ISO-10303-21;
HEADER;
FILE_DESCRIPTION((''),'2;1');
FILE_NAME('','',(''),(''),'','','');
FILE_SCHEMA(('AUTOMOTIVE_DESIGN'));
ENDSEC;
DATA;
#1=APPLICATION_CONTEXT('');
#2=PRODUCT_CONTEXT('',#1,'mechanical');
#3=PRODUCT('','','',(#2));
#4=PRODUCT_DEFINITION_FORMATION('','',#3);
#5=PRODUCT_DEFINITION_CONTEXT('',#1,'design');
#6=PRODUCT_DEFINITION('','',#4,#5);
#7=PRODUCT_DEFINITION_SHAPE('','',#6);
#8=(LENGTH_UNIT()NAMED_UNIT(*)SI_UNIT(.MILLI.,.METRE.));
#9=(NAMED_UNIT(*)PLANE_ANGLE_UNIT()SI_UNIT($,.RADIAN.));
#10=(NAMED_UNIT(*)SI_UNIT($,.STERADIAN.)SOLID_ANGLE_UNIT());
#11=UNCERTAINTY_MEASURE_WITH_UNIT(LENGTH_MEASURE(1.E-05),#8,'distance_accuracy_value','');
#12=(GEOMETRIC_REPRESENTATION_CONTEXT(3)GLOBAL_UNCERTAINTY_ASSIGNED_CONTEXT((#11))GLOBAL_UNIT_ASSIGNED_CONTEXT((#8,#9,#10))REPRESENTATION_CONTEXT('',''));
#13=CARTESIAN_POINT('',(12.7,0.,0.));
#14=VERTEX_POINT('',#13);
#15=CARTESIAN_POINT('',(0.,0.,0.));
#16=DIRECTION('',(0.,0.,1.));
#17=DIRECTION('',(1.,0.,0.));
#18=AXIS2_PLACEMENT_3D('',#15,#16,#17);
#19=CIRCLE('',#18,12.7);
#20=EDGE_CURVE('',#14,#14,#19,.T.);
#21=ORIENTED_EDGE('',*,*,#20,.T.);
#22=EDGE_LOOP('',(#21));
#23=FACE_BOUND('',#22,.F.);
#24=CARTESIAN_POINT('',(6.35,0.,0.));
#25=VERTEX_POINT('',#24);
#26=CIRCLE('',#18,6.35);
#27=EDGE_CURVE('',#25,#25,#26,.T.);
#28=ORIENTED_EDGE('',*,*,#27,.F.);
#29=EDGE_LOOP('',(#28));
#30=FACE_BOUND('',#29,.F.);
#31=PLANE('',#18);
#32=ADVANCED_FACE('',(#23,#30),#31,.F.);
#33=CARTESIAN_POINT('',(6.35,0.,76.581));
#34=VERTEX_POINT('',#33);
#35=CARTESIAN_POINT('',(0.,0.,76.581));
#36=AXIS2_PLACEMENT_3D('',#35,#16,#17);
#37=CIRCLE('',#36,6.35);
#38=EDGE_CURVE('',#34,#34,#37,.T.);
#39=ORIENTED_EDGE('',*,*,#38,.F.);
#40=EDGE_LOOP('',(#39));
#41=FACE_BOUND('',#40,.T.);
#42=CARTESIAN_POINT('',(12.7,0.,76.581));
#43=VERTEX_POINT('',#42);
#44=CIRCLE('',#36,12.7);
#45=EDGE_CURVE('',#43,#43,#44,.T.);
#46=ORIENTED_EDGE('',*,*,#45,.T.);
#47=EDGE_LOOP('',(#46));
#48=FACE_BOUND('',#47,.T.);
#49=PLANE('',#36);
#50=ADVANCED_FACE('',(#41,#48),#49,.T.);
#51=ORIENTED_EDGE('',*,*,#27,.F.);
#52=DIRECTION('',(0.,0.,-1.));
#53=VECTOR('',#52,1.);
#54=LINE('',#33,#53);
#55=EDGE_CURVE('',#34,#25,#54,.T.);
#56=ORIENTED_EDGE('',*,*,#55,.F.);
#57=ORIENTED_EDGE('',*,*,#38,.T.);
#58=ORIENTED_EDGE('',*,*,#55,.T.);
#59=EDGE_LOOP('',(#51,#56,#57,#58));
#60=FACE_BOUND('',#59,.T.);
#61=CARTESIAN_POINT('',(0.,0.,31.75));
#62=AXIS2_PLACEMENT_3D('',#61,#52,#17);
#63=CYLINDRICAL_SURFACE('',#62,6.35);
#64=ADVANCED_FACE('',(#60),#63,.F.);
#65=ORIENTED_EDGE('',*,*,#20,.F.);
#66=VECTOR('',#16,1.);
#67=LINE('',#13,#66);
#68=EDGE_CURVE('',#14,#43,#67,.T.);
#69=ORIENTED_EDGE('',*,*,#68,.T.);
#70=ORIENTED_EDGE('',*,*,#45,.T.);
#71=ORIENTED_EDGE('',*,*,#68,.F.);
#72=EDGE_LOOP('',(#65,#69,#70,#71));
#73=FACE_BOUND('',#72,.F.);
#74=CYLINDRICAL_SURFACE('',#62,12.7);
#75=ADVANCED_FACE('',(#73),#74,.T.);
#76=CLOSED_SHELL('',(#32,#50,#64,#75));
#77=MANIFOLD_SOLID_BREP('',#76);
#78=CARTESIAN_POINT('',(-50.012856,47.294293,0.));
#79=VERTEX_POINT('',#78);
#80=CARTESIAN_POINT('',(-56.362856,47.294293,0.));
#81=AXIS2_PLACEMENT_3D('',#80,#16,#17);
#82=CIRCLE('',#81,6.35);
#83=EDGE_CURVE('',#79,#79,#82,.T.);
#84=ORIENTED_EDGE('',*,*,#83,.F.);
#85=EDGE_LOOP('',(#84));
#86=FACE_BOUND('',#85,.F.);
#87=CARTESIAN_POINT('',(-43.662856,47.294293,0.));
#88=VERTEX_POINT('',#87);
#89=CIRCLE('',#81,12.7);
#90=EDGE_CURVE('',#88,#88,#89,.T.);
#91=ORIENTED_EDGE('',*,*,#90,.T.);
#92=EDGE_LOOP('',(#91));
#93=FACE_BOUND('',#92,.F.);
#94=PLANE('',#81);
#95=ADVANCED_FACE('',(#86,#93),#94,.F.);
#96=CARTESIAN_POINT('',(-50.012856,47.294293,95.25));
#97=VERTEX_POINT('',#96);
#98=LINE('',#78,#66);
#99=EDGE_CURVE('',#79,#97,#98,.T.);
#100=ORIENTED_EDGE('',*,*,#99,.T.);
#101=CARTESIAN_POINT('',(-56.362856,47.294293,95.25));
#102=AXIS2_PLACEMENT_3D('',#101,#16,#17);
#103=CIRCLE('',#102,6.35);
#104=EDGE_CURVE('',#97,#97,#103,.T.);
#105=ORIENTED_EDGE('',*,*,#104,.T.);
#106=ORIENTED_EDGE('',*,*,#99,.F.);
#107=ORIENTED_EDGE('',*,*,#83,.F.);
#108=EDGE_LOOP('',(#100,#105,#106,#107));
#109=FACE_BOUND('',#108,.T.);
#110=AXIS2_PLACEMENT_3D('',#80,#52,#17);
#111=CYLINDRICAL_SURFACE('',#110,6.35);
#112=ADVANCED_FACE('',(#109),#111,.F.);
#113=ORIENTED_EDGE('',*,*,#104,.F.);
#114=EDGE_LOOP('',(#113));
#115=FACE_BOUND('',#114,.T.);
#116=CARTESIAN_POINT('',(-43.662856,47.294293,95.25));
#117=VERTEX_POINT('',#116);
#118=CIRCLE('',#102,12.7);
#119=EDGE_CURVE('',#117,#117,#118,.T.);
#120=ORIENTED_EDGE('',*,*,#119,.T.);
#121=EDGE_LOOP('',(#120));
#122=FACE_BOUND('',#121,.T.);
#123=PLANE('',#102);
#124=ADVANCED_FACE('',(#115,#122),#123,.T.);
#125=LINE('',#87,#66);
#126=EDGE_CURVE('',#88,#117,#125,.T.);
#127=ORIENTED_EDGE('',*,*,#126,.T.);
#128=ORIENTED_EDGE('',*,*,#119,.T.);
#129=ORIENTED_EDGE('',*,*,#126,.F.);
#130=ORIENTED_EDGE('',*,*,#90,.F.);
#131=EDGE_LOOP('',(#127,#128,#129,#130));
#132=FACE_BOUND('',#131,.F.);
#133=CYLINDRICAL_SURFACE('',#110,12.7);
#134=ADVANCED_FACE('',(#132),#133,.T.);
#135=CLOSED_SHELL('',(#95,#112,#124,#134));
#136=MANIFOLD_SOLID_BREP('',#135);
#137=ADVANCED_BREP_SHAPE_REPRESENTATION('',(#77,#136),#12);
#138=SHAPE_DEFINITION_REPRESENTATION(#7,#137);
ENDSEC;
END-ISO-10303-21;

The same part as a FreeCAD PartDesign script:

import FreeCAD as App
import Part
import Sketcher
Q = App.Units.Quantity

doc = App.newDocument("Part")
body = doc.addObject("PartDesign::Body", "Body")

# Sketch on XY plane
sketch1 = doc.addObject("Sketcher::SketchObject", "Sketch")
body.addObject(sketch1)
sketch1.AttachmentSupport = (doc.XY_Plane, [""])
sketch1.MapMode = "FlatFace"
sketch1.addGeometry(Part.Circle(App.Vector(-56, 47, 0), App.Vector(0, 0, 1), 13), False)
sketch1.addGeometry(Part.Circle(App.Vector(-56, 47, 0), App.Vector(0, 0, 1), 6), False)
sketch1.addConstraint(Sketcher.Constraint("Coincident", 1, 3, 0, 3))
sketch1.addConstraint(Sketcher.Constraint("Diameter", 0, Q("1 in")))
sketch1.addConstraint(Sketcher.Constraint("Diameter", 1, Q("0.5 in")))
sketch1.addConstraint(Sketcher.Constraint("DistanceX", 0, 3, -1, 1, Q("56.362856 mm")))
sketch1.addConstraint(Sketcher.Constraint("DistanceY", -1, 1, 0, 3, Q("47.294293 mm")))
pad1 = doc.addObject("PartDesign::Pad", "Pad")
body.addObject(pad1)
pad1.Profile = sketch1
pad1.Length = Q("3.75 in")
body2 = doc.addObject("PartDesign::Body", "Body001")

# Sketch on XY plane
sketch2 = doc.addObject("Sketcher::SketchObject", "Sketch001")
body2.addObject(sketch2)
sketch2.AttachmentSupport = (doc.getObject("XY_Plane001"), [""])
sketch2.MapMode = "FlatFace"
sketch2.addGeometry(Part.Circle(App.Vector(0, 0, 0), App.Vector(0, 0, 1), 13), False)
sketch2.addGeometry(Part.Circle(App.Vector(0, 0, 0), App.Vector(0, 0, 1), 6), False)
sketch2.addConstraint(Sketcher.Constraint("Coincident", 0, 3, -1, 1))
sketch2.addConstraint(Sketcher.Constraint("Coincident", 1, 3, -1, 1))
sketch2.addConstraint(Sketcher.Constraint("Diameter", 0, Q("1 in")))
sketch2.addConstraint(Sketcher.Constraint("Diameter", 1, Q("0.5 in")))
pad2 = doc.addObject("PartDesign::Pad", "Pad001")
body2.addObject(pad2)
pad2.Profile = sketch2
pad2.Length = Q("1.25 in")

# Sketch on XY plane
sketch3 = doc.addObject("Sketcher::SketchObject", "Sketch002")
body2.addObject(sketch3)
sketch3.AttachmentSupport = (doc.getObject("XY_Plane001"), [""])
sketch3.MapMode = "FlatFace"
sketch3.AttachmentOffset = App.Placement(App.Vector(0, 0, 1.25 * 25.4), App.Rotation())
sketch3.addGeometry(Part.Circle(App.Vector(0, 0, 0), App.Vector(0, 0, 1), 13), False)
sketch3.addGeometry(Part.Circle(App.Vector(0, 0, 0), App.Vector(0, 0, 1), 6), False)
sketch3.addConstraint(Sketcher.Constraint("Coincident", 0, 3, -1, 1))
sketch3.addConstraint(Sketcher.Constraint("Coincident", 1, 3, -1, 1))
sketch3.addConstraint(Sketcher.Constraint("Diameter", 0, Q("1 in")))
sketch3.addConstraint(Sketcher.Constraint("Diameter", 1, Q("0.5 in")))
pad3 = doc.addObject("PartDesign::Pad", "Pad002")
body2.addObject(pad3)
pad3.Profile = sketch3
pad3.Length = Q("1.765 in")

doc.recompute()
